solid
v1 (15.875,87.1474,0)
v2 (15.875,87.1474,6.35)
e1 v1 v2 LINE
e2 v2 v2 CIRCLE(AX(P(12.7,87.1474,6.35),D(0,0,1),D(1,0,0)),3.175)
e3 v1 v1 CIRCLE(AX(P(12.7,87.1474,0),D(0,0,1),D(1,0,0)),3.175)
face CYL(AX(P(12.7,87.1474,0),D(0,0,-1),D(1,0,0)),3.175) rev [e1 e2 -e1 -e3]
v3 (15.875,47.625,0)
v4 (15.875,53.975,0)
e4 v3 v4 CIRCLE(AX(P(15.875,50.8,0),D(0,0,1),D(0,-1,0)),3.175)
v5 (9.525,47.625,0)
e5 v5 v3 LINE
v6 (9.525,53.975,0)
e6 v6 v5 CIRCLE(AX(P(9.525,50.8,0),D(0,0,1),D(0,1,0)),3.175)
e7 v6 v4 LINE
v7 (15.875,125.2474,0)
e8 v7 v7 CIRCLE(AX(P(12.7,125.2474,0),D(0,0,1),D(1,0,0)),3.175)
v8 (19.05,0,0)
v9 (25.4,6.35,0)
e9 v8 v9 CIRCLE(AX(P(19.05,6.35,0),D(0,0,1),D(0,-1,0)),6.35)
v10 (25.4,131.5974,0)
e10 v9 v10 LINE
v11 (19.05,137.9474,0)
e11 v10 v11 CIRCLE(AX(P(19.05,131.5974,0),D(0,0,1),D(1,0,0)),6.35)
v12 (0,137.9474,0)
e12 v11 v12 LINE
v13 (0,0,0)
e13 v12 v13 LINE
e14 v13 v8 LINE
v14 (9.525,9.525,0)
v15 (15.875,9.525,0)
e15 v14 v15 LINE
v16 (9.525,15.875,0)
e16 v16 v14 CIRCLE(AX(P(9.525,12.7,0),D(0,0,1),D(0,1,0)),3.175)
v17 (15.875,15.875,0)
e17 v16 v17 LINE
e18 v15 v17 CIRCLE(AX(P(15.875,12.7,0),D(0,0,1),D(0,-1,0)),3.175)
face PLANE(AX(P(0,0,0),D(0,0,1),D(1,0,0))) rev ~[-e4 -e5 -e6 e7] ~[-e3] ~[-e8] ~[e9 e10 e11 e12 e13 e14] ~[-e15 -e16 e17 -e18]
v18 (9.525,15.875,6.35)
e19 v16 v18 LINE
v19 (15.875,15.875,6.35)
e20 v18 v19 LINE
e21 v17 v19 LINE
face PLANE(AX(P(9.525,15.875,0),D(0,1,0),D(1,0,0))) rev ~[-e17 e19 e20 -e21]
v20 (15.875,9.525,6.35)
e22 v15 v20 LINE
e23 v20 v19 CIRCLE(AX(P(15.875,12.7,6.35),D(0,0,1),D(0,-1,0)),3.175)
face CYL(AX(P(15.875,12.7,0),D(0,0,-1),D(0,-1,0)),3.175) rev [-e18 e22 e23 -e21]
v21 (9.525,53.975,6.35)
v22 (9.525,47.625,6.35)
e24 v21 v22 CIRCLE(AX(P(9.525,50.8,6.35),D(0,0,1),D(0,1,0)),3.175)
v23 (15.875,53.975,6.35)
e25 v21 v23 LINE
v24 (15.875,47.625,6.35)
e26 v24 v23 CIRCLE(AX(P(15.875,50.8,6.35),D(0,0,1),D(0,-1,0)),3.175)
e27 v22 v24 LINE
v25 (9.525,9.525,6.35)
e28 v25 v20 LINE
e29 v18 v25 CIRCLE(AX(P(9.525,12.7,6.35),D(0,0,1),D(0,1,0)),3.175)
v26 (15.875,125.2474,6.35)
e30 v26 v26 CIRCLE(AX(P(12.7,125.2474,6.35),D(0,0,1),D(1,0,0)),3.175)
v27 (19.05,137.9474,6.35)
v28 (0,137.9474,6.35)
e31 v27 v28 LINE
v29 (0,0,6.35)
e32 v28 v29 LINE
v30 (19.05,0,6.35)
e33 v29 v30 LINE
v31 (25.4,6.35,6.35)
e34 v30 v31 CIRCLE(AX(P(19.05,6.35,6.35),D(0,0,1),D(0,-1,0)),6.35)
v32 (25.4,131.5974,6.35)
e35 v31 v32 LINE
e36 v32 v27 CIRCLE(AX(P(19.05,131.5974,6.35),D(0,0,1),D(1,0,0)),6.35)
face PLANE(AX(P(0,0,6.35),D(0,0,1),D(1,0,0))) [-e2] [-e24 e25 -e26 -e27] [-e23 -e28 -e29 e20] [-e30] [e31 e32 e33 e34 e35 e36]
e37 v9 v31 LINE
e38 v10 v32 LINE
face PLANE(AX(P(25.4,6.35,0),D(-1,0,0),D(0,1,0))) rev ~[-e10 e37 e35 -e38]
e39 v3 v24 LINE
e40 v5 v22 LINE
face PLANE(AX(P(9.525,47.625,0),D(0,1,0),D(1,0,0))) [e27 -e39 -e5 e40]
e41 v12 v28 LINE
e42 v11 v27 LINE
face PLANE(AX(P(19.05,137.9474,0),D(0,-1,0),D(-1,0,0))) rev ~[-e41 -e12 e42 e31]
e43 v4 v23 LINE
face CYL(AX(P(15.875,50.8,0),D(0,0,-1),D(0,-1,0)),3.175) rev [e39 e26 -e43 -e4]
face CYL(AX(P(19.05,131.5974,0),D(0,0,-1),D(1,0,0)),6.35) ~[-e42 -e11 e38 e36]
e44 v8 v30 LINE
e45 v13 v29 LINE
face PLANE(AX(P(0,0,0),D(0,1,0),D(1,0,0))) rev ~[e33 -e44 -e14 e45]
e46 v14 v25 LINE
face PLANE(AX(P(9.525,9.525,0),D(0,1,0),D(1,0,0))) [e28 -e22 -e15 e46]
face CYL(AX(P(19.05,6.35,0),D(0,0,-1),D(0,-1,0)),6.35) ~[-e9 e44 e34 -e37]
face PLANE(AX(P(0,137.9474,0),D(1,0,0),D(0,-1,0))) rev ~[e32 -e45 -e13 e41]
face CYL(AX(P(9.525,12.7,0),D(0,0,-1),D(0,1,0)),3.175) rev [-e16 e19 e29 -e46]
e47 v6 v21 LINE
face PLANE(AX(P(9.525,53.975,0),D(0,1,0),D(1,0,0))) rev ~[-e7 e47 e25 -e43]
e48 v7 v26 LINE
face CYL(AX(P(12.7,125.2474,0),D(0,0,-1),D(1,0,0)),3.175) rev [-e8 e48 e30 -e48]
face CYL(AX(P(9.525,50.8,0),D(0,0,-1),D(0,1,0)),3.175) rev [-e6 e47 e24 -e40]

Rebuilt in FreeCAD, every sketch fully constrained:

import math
import FreeCAD as App
import Part
import Sketcher
Q = App.Units.Quantity

doc = App.newDocument("Part")
body = doc.addObject("PartDesign::Body", "Body")

# Sketch on XY plane
sketch1 = body.newObject("Sketcher::SketchObject", "Sketch")
sketch1.AttachmentSupport = (doc.getObject("XY_Plane"), [""])
sketch1.MapMode = "FlatFace"
sketch1.addGeometry(Part.ArcOfCircle(Part.Circle(App.Vector(19.05, 131.5974, 0), App.Vector(0, 0, 1), 6.35), math.radians(0), math.radians(90)), False)
sketch1.addGeometry(Part.LineSegment(App.Vector(19.05, 137.9474, 0), App.Vector(0, 137.9474, 0)), False)
sketch1.addGeometry(Part.LineSegment(App.Vector(0, 137.9474, 0), App.Vector(0, 0, 0)), False)
sketch1.addGeometry(Part.LineSegment(App.Vector(0, 0, 0), App.Vector(19.05, 0, 0)), False)
sketch1.addGeometry(Part.ArcOfCircle(Part.Circle(App.Vector(19.05, 6.35, 0), App.Vector(0, 0, 1), 6.35), math.radians(-90), math.radians(0)), False)
sketch1.addGeometry(Part.LineSegment(App.Vector(25.4, 6.35, 0), App.Vector(25.4, 131.5974, 0)), False)
sketch1.addGeometry(Part.ArcOfCircle(Part.Circle(App.Vector(9.525, 12.7, 0), App.Vector(0, 0, 1), 3.175), math.radians(90), math.radians(270)), False)
sketch1.addGeometry(Part.LineSegment(App.Vector(9.525, 15.875, 0), App.Vector(15.875, 15.875, 0)), False)
sketch1.addGeometry(Part.ArcOfCircle(Part.Circle(App.Vector(15.875, 12.7, 0), App.Vector(0, 0, 1), 3.175), math.radians(-90), math.radians(90)), False)
sketch1.addGeometry(Part.LineSegment(App.Vector(15.875, 9.525, 0), App.Vector(9.525, 9.525, 0)), False)
sketch1.addGeometry(Part.ArcOfCircle(Part.Circle(App.Vector(9.525, 50.8, 0), App.Vector(0, 0, 1), 3.175), math.radians(90), math.radians(270)), False)
sketch1.addGeometry(Part.LineSegment(App.Vector(9.525, 53.975, 0), App.Vector(15.875, 53.975, 0)), False)
sketch1.addGeometry(Part.ArcOfCircle(Part.Circle(App.Vector(15.875, 50.8, 0), App.Vector(0, 0, 1), 3.175), math.radians(-90), math.radians(90)), False)
sketch1.addGeometry(Part.LineSegment(App.Vector(15.875, 47.625, 0), App.Vector(9.525, 47.625, 0)), False)
sketch1.addGeometry(Part.Circle(App.Vector(12.7, 87.1474, 0), App.Vector(0, 0, 1), 3.175), False)
sketch1.addGeometry(Part.Circle(App.Vector(12.7, 125.2474, 0), App.Vector(0, 0, 1), 3.175), False)
sketch1.addConstraint(Sketcher.Constraint("Tangent", 0, 2, 1, 1))
sketch1.addConstraint(Sketcher.Constraint("Coincident", 1, 2, 2, 1))
sketch1.addConstraint(Sketcher.Constraint("Coincident", 2, 2, 3, 1))
sketch1.addConstraint(Sketcher.Constraint("Tangent", 3, 2, 4, 1))
sketch1.addConstraint(Sketcher.Constraint("Tangent", 4, 2, 5, 1))
sketch1.addConstraint(Sketcher.Constraint("Tangent", 5, 2, 0, 1))
sketch1.addConstraint(Sketcher.Constraint("Tangent", 6, 1, 7, 1))
sketch1.addConstraint(Sketcher.Constraint("Tangent", 7, 2, 8, 2))
sketch1.addConstraint(Sketcher.Constraint("Tangent", 8, 1, 9, 1))
sketch1.addConstraint(Sketcher.Constraint("Tangent", 9, 2, 6, 2))
sketch1.addConstraint(Sketcher.Constraint("Tangent", 10, 1, 11, 1))
sketch1.addConstraint(Sketcher.Constraint("Tangent", 11, 2, 12, 2))
sketch1.addConstraint(Sketcher.Constraint("Tangent", 12, 1, 13, 1))
sketch1.addConstraint(Sketcher.Constraint("Tangent", 13, 2, 10, 2))
sketch1.addConstraint(Sketcher.Constraint("Horizontal", 1))
sketch1.addConstraint(Sketcher.Constraint("Vertical", 2))
sketch1.addConstraint(Sketcher.Constraint("Horizontal", 3))
sketch1.addConstraint(Sketcher.Constraint("Vertical", 5))
sketch1.addConstraint(Sketcher.Constraint("Horizontal", 7))
sketch1.addConstraint(Sketcher.Constraint("Horizontal", 9))
sketch1.addConstraint(Sketcher.Constraint("Horizontal", 11))
sketch1.addConstraint(Sketcher.Constraint("Horizontal", 13))
sketch1.addConstraint(Sketcher.Constraint("Coincident", 2, 2, -1, 1))
sketch1.addConstraint(Sketcher.Constraint("Equal", 0, 4))
sketch1.addConstraint(Sketcher.Constraint("Equal", 8, 10))
sketch1.addConstraint(Sketcher.Constraint("Equal", 12, 14))
sketch1.addConstraint(Sketcher.Constraint("Equal", 14, 15))
sketch1.addConstraint(Sketcher.Constraint("Vertical", 6, 3, 10, 3))
sketch1.addConstraint(Sketcher.Constraint("Vertical", 8, 3, 12, 3))
sketch1.addConstraint(Sketcher.Constraint("Vertical", 14, 3, 15, 3))
sketch1.addConstraint(Sketcher.Constraint("Diameter", 14, Q("0.25 in")))
sketch1.addConstraint(Sketcher.Constraint("Radius", 0, Q("0.25 in")))
sketch1.addConstraint(Sketcher.Constraint("DistanceY", -1, 1, 10, 3, Q("2 in")))
sketch1.addConstraint(Sketcher.Constraint("DistanceX", -1, 1, 4, 2, Q("1 in")))
sketch1.addConstraint(Sketcher.Constraint("DistanceY", 14, 3, 0, 2, Q("2 in")))
sketch1.addConstraint(Sketcher.Constraint("DistanceX", 7, 1, 7, 2, Q("0.25 in")))
sketch1.addConstraint(Sketcher.Constraint("DistanceY", -1, 1, 6, 3, Q("0.5 in")))
sketch1.addConstraint(Sketcher.Constraint("DistanceX", -1, 1, 14, 3, Q("0.5 in")))
sketch1.addConstraint(Sketcher.Constraint("DistanceY", 14, 3, 15, 3, Q("1.5 in")))
sketch1.addConstraint(Sketcher.Constraint("DistanceY", 2, 2, 2, 1, Q("5.431 in")))
sketch1.addConstraint(Sketcher.Constraint("DistanceX", -1, 1, 6, 3, Q("0.375 in")))
pad1 = body.newObject("PartDesign::Pad", "Pad")
pad1.Profile = sketch1
pad1.Length = Q("0.25 in")

doc.recompute()
